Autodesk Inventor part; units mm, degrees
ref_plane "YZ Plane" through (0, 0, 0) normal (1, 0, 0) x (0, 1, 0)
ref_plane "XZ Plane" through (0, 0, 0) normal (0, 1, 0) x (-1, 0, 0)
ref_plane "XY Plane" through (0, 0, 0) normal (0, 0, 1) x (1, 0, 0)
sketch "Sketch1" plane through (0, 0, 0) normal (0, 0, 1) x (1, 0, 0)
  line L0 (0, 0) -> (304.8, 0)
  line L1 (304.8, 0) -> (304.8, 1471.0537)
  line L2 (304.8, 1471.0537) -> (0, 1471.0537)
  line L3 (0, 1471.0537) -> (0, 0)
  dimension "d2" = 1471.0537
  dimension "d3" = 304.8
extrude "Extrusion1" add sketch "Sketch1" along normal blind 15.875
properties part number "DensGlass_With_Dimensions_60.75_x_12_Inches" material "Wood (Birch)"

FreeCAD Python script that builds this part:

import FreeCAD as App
import Part
import Sketcher
from FreeCAD import Vector
Q = App.Units.Quantity

doc = App.newDocument("Part")
body = doc.addObject("PartDesign::Body", "Body")

sketch1 = doc.addObject("Sketcher::SketchObject", "Sketch")
body.addObject(sketch1)
sketch1.AttachmentSupport = (doc.XY_Plane, [""])
sketch1.MapMode = "FlatFace"
sketch1.addGeometry([
    Part.LineSegment(Vector(0, 1471, 0), Vector(0, 0, 0)),
    Part.LineSegment(Vector(0, 0, 0), Vector(305, 0, 0)),
    Part.LineSegment(Vector(305, 0, 0), Vector(305, 1471, 0)),
    Part.LineSegment(Vector(305, 1471, 0), Vector(0, 1471, 0)),
], False)
sketch1.addConstraint([
    Sketcher.Constraint("Coincident", 0, 2, 1, 1),
    Sketcher.Constraint("Coincident", 1, 2, 2, 1),
    Sketcher.Constraint("Coincident", 2, 2, 3, 1),
    Sketcher.Constraint("Coincident", 3, 2, 0, 1),
    Sketcher.Constraint("Vertical", 0),
    Sketcher.Constraint("Horizontal", 1),
    Sketcher.Constraint("Vertical", 2),
    Sketcher.Constraint("Horizontal", 3),
    Sketcher.Constraint("Coincident", 0, 2, -1, 1),
    Sketcher.Constraint("DistanceX", 1, 1, 1, 2, Q("12 in")),
    Sketcher.Constraint("DistanceY", 0, 2, 0, 1, Q("57.9155 in")),
])
pad1 = doc.addObject("PartDesign::Pad", "Pad")
body.addObject(pad1)
pad1.Profile = sketch1
pad1.Length = Q("0.625 in")

doc.recompute()
